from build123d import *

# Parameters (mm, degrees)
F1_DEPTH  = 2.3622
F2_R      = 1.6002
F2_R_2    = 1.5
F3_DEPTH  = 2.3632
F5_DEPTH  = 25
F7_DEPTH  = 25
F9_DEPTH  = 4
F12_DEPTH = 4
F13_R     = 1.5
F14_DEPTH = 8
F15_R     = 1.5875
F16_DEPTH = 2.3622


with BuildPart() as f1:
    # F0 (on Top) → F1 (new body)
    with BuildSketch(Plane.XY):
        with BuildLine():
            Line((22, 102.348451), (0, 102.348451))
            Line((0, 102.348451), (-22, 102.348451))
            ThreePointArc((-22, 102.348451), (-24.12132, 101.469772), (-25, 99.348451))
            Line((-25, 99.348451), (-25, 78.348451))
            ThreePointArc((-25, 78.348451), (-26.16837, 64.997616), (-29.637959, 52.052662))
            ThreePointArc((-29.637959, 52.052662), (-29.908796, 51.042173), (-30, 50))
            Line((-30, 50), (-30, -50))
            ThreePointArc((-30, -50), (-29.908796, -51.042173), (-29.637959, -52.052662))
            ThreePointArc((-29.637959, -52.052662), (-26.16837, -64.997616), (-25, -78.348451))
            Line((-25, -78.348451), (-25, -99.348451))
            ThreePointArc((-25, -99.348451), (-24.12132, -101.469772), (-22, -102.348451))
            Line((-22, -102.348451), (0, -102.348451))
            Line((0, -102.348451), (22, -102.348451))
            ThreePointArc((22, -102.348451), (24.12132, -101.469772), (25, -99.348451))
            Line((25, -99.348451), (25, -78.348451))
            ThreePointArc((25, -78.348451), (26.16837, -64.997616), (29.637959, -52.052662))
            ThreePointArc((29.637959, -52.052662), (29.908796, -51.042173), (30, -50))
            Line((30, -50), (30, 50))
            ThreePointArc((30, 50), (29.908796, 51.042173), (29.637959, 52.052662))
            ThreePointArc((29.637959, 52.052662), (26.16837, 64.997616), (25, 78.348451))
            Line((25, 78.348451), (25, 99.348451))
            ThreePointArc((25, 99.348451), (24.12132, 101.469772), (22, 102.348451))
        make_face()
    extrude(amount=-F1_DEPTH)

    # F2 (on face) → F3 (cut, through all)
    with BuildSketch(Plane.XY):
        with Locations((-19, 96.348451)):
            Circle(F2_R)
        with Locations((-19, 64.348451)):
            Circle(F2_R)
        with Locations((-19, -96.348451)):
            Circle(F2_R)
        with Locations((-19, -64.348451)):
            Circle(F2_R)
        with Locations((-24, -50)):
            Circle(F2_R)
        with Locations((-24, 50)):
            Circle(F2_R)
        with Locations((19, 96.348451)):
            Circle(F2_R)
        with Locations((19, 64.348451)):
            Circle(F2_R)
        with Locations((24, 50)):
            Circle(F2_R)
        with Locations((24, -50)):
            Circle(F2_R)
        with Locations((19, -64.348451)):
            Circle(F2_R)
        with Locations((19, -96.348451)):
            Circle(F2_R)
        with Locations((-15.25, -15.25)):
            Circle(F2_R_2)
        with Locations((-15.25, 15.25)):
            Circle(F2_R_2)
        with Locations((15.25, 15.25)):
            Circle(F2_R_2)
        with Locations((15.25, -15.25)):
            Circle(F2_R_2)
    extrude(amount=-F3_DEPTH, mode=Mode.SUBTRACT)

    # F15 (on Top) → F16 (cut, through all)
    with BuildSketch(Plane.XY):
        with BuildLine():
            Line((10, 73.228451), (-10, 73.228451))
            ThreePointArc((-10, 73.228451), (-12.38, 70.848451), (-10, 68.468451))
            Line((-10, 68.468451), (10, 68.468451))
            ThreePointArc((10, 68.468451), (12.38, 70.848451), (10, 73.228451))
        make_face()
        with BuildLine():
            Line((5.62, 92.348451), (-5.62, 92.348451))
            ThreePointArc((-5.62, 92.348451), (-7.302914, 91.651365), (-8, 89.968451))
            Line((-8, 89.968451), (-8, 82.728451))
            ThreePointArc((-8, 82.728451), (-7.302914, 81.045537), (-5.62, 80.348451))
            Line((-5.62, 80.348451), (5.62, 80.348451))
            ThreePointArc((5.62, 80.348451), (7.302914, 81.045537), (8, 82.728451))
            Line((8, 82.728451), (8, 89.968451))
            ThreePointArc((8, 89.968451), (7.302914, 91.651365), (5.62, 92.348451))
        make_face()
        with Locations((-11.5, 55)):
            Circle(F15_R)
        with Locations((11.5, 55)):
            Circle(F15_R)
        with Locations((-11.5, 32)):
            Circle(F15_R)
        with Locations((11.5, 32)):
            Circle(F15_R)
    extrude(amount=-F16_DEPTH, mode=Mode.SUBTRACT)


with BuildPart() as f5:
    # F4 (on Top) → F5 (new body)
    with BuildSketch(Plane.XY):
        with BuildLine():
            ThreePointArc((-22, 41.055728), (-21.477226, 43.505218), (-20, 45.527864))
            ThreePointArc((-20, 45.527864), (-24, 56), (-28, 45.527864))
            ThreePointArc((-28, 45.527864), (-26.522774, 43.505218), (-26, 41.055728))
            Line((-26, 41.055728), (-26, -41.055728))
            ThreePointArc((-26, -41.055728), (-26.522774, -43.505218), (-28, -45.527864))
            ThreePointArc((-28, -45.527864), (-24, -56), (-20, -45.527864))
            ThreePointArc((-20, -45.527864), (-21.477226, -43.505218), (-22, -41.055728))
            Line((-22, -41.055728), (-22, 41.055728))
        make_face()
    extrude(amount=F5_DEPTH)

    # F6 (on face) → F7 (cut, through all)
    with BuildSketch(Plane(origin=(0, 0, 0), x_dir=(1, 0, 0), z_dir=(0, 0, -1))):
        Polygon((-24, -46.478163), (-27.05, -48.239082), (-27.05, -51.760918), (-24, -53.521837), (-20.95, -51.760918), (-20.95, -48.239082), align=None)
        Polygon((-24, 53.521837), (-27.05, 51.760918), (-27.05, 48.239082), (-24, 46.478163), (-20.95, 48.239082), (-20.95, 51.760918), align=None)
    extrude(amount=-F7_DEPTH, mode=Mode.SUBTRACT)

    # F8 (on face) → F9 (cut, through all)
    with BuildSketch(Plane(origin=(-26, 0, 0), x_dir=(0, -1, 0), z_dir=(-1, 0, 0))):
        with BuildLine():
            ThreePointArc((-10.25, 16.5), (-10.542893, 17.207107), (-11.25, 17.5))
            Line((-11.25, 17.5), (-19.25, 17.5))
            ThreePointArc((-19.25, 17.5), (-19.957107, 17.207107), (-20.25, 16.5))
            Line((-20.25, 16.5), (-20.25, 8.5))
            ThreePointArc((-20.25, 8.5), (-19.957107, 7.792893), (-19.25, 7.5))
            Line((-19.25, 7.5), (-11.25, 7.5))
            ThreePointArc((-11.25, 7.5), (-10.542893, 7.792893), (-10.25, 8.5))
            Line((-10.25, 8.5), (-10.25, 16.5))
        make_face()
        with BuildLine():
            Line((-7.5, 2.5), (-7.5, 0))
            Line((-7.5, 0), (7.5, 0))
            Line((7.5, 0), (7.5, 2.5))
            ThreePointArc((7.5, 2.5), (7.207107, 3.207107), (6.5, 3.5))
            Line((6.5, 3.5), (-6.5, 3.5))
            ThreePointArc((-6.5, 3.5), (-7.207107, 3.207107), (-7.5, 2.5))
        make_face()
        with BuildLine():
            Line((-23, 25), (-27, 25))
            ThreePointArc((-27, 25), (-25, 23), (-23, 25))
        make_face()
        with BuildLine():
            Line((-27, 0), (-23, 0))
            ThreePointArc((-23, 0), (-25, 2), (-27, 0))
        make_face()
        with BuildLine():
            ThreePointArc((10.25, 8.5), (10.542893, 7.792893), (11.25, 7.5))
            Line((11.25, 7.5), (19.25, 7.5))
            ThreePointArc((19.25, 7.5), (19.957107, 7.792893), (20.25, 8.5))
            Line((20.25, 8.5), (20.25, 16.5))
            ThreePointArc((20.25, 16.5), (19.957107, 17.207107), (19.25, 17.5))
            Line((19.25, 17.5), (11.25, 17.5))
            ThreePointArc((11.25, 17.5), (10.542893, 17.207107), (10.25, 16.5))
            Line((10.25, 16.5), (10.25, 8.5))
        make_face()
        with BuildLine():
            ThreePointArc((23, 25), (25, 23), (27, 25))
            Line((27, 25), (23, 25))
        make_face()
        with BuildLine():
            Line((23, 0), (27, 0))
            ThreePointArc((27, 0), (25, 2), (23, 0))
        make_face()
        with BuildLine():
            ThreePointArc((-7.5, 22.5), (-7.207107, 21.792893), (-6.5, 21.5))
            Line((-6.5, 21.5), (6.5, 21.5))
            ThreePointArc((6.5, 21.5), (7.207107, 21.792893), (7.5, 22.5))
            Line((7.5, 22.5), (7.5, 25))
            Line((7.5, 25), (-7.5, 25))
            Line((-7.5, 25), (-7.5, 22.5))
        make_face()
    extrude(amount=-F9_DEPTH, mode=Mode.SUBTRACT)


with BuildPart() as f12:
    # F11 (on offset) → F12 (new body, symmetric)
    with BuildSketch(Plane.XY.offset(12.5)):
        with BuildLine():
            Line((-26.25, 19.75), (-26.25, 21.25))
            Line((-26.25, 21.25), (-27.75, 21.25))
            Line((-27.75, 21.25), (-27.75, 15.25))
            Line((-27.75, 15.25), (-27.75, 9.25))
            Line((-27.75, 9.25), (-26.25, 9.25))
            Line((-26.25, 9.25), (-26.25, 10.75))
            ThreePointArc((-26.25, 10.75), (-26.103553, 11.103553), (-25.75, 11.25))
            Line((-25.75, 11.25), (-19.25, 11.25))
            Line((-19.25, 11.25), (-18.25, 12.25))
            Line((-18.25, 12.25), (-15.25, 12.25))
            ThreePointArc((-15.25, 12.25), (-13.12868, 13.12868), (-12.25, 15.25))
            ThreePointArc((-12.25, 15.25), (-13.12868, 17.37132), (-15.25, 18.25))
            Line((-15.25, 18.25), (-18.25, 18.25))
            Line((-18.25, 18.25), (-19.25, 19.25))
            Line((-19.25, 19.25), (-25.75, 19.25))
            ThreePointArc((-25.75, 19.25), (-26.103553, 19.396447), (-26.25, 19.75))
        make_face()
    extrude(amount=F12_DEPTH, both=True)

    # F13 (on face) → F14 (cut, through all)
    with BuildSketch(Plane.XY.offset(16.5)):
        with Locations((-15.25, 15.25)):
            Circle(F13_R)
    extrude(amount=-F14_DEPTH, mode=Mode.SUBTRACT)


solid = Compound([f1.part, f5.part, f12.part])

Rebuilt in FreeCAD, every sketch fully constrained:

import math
import FreeCAD as App
import Part
import Sketcher
Q = App.Units.Quantity


def add_polygon(sketch, points):
    """Adds a closed chain of lines whose ends are joined by coincident constraints."""
    first, n = sketch.GeometryCount, len(points)
    for a, b in zip(points, points[1:] + points[:1]):
        sketch.addGeometry(Part.LineSegment(App.Vector(*a, 0), App.Vector(*b, 0)), False)
    for i in range(n):
        sketch.addConstraint(Sketcher.Constraint("Coincident", first + i, 2, first + (i + 1) % n, 1))

doc = App.newDocument("Part")
body = doc.addObject("PartDesign::Body", "Body")

# Sketch on XY plane
sketch1 = body.newObject("Sketcher::SketchObject", "Sketch")
sketch1.AttachmentSupport = (doc.getObject("XY_Plane"), [""])
sketch1.MapMode = "FlatFace"
sketch1.addGeometry([
    Part.LineSegment(App.Vector(22, 102.3, 0), App.Vector(-22, 102.3, 0)),  # 0
    Part.ArcOfCircle(Part.Circle(App.Vector(-22, 99.3, 0), App.Vector(0, 0, 1), 3), math.radians(90), math.radians(180)),  # 1
    Part.LineSegment(App.Vector(-25, 99.3, 0), App.Vector(-25, 78.3, 0)),  # 2
    Part.ArcOfCircle(Part.Circle(App.Vector(-101.9, 78.3, 0), App.Vector(0, 0, 1), 76.9), math.radians(-20), math.radians(0)),  # 3
    Part.ArcOfCircle(Part.Circle(App.Vector(-24, 50, 0), App.Vector(0, 0, 1), 6), math.radians(160), math.radians(180)),  # 4
    Part.LineSegment(App.Vector(-30, 50, 0), App.Vector(-30, -50, 0)),  # 5
    Part.ArcOfCircle(Part.Circle(App.Vector(-24, -50, 0), App.Vector(0, 0, 1), 6), math.radians(-180), math.radians(-160)),  # 6
    Part.ArcOfCircle(Part.Circle(App.Vector(-101.9, -78.3, 0), App.Vector(0, 0, 1), 76.9), math.radians(0), math.radians(20)),  # 7
    Part.LineSegment(App.Vector(-25, -78.3, 0), App.Vector(-25, -99.3, 0)),  # 8
    Part.ArcOfCircle(Part.Circle(App.Vector(-22, -99.3, 0), App.Vector(0, 0, 1), 3), math.radians(180), math.radians(270)),  # 9
    Part.LineSegment(App.Vector(-22, -102.3, 0), App.Vector(22, -102.3, 0)),  # 10
    Part.ArcOfCircle(Part.Circle(App.Vector(22, -99.3, 0), App.Vector(0, 0, 1), 3), math.radians(-90), math.radians(0)),  # 11
    Part.LineSegment(App.Vector(25, -99.3, 0), App.Vector(25, -78.3, 0)),  # 12
    Part.ArcOfCircle(Part.Circle(App.Vector(101.9, -78.3, 0), App.Vector(0, 0, 1), 76.9), math.radians(160), math.radians(180)),  # 13
    Part.ArcOfCircle(Part.Circle(App.Vector(24, -50, 0), App.Vector(0, 0, 1), 6), math.radians(-20), math.radians(0)),  # 14
    Part.LineSegment(App.Vector(30, -50, 0), App.Vector(30, 50, 0)),  # 15
    Part.ArcOfCircle(Part.Circle(App.Vector(24, 50, 0), App.Vector(0, 0, 1), 6), math.radians(0), math.radians(20)),  # 16
    Part.ArcOfCircle(Part.Circle(App.Vector(101.9, 78.3, 0), App.Vector(0, 0, 1), 76.9), math.radians(-180), math.radians(-160)),  # 17
    Part.LineSegment(App.Vector(25, 78.3, 0), App.Vector(25, 99.3, 0)),  # 18
    Part.ArcOfCircle(Part.Circle(App.Vector(22, 99.3, 0), App.Vector(0, 0, 1), 3), math.radians(0), math.radians(90)),  # 19
], False)
sketch1.addConstraint([
    Sketcher.Constraint("Tangent", 0, 2, 1, 1),
    Sketcher.Constraint("Tangent", 1, 2, 2, 1),
    Sketcher.Constraint("Tangent", 2, 2, 3, 2),
    Sketcher.Constraint("Tangent", 3, 1, 4, 1),
    Sketcher.Constraint("Tangent", 4, 2, 5, 1),
    Sketcher.Constraint("Tangent", 5, 2, 6, 1),
    Sketcher.Constraint("Tangent", 6, 2, 7, 2),
    Sketcher.Constraint("Tangent", 7, 1, 8, 1),
    Sketcher.Constraint("Tangent", 8, 2, 9, 1),
    Sketcher.Constraint("Tangent", 9, 2, 10, 1),
    Sketcher.Constraint("Tangent", 10, 2, 11, 1),
    Sketcher.Constraint("Tangent", 11, 2, 12, 1),
    Sketcher.Constraint("Tangent", 12, 2, 13, 2),
    Sketcher.Constraint("Tangent", 13, 1, 14, 1),
    Sketcher.Constraint("Tangent", 14, 2, 15, 1),
    Sketcher.Constraint("Tangent", 15, 2, 16, 1),
    Sketcher.Constraint("Tangent", 16, 2, 17, 2),
    Sketcher.Constraint("Tangent", 17, 1, 18, 1),
    Sketcher.Constraint("Tangent", 18, 2, 19, 1),
    Sketcher.Constraint("Tangent", 19, 2, 0, 1),
    Sketcher.Constraint("Horizontal", 0),
    Sketcher.Constraint("Vertical", 2),
    Sketcher.Constraint("Vertical", 5),
    Sketcher.Constraint("Vertical", 8),
    Sketcher.Constraint("Horizontal", 10),
    Sketcher.Constraint("Vertical", 12),
    Sketcher.Constraint("Vertical", 15),
    Sketcher.Constraint("Vertical", 18),
    Sketcher.Constraint("Equal", 4, 6),
    Sketcher.Constraint("Equal", 3, 7),
    Sketcher.Constraint("Equal", 1, 9),
    Sketcher.Constraint("Equal", 9, 11),
    Sketcher.Constraint("Equal", 7, 13),
    Sketcher.Constraint("Equal", 6, 14),
    Sketcher.Constraint("Equal", 14, 16),
    Sketcher.Constraint("Equal", 13, 17),
    Sketcher.Constraint("Equal", 11, 19),
    Sketcher.Constraint("Symmetric", 1, 3, 11, 3, -1, 1),
    Sketcher.Constraint("Symmetric", 4, 3, 14, 3, -1, 1),
    Sketcher.Constraint("Symmetric", 7, 3, 17, 3, -1, 1),
    Sketcher.Constraint("Symmetric", 7, 3, 13, 3, -2),
    Sketcher.Constraint("Radius", 1, Q("2.999999 mm")),
    Sketcher.Constraint("DistanceX", 0, 2, 0, 1, Q("44 mm")),
    Sketcher.Constraint("DistanceY", 2, 2, 2, 1, Q("21 mm")),
    Sketcher.Constraint("DistanceY", 5, 2, 5, 1, Q("100 mm")),
    Sketcher.Constraint("DistanceX", 4, 2, -1, 1, Q("30 mm")),
    Sketcher.Constraint("Radius", 3, Q("76.863483 mm")),
    Sketcher.Constraint("Radius", 4, Q("6.000037 mm")),
])
pad1 = body.newObject("PartDesign::Pad", "Pad")
pad1.Profile = sketch1
pad1.Length = 2.3622
pad1.Reversed = True

# Sketch on XY plane
sketch2 = body.newObject("Sketcher::SketchObject", "Sketch001")
sketch2.AttachmentSupport = (doc.getObject("XY_Plane"), [""])
sketch2.MapMode = "FlatFace"
sketch2.addGeometry([
    Part.Circle(App.Vector(-19, 96.3, 0), App.Vector(0, 0, 1), 1.6),  # 0
    Part.Circle(App.Vector(-19, 64.3, 0), App.Vector(0, 0, 1), 1.6),  # 1
    Part.Circle(App.Vector(-19, -96.3, 0), App.Vector(0, 0, 1), 1.6),  # 2
    Part.Circle(App.Vector(-19, -64.3, 0), App.Vector(0, 0, 1), 1.6),  # 3
    Part.Circle(App.Vector(-24, -50, 0), App.Vector(0, 0, 1), 1.6),  # 4
    Part.Circle(App.Vector(-24, 50, 0), App.Vector(0, 0, 1), 1.6),  # 5
    Part.Circle(App.Vector(19, 96.3, 0), App.Vector(0, 0, 1), 1.6),  # 6
    Part.Circle(App.Vector(19, 64.3, 0), App.Vector(0, 0, 1), 1.6),  # 7
    Part.Circle(App.Vector(24, 50, 0), App.Vector(0, 0, 1), 1.6),  # 8
    Part.Circle(App.Vector(24, -50, 0), App.Vector(0, 0, 1), 1.6),  # 9
    Part.Circle(App.Vector(19, -64.3, 0), App.Vector(0, 0, 1), 1.6),  # 10
    Part.Circle(App.Vector(19, -96.3, 0), App.Vector(0, 0, 1), 1.6),  # 11
    Part.Circle(App.Vector(-15.2, -15.2, 0), App.Vector(0, 0, 1), 1.5),  # 12
    Part.Circle(App.Vector(-15.2, 15.2, 0), App.Vector(0, 0, 1), 1.5),  # 13
    Part.Circle(App.Vector(15.2, 15.2, 0), App.Vector(0, 0, 1), 1.5),  # 14
    Part.Circle(App.Vector(15.2, -15.2, 0), App.Vector(0, 0, 1), 1.5),  # 15
], False)
sketch2.addConstraint([
    Sketcher.Constraint("Equal", 0, 1),
    Sketcher.Constraint("Equal", 1, 2),
    Sketcher.Constraint("Equal", 2, 3),
    Sketcher.Constraint("Equal", 3, 4),
    Sketcher.Constraint("Equal", 4, 5),
    Sketcher.Constraint("Equal", 5, 6),
    Sketcher.Constraint("Equal", 6, 7),
    Sketcher.Constraint("Equal", 7, 8),
    Sketcher.Constraint("Equal", 8, 9),
    Sketcher.Constraint("Equal", 9, 10),
    Sketcher.Constraint("Equal", 10, 11),
    Sketcher.Constraint("Equal", 12, 13),
    Sketcher.Constraint("Equal", 13, 14),
    Sketcher.Constraint("Equal", 14, 15),
    Sketcher.Constraint("Symmetric", 2, 3, 6, 3, -1, 1),
    Sketcher.Constraint("Symmetric", 3, 3, 7, 3, -1, 1),
    Sketcher.Constraint("Symmetric", 4, 3, 8, 3, -1, 1),
    Sketcher.Constraint("Symmetric", 5, 3, 9, 3, -1, 1),
    Sketcher.Constraint("Symmetric", 1, 3, 10, 3, -1, 1),
    Sketcher.Constraint("Symmetric", 0, 3, 11, 3, -1, 1),
    Sketcher.Constraint("Symmetric", 12, 3, 14, 3, -1, 1),
    Sketcher.Constraint("Symmetric", 13, 3, 15, 3, -1, 1),
    Sketcher.Constraint("Symmetric", 0, 3, 6, 3, -2),
    Sketcher.Constraint("Symmetric", 1, 3, 7, 3, -2),
    Sketcher.Constraint("Symmetric", 5, 3, 8, 3, -2),
    Sketcher.Constraint("Symmetric", 13, 3, 14, 3, -2),
    Sketcher.Constraint("Vertical", 0, 3, 1, 3),
    Sketcher.Constraint("Diameter", 12, Q("3 mm")),
    Sketcher.Constraint("DistanceX", 0, 3, -1, 1, Q("19 mm")),
    Sketcher.Constraint("DistanceX", 4, 3, -1, 1, Q("24 mm")),
    Sketcher.Constraint("DistanceY", 4, 3, -1, 1, Q("50 mm")),
    Sketcher.Constraint("DistanceY", 1, 3, 0, 3, Q("32 mm")),
    Sketcher.Constraint("Diameter", 0, Q("3.2004 mm")),
    Sketcher.Constraint("DistanceY", 12, 3, 13, 3, Q("30.5 mm")),
    Sketcher.Constraint("DistanceX", 13, 3, 14, 3, Q("30.5 mm")),
    Sketcher.Constraint("DistanceY", 2, 3, 1, 3, Q("160.696902 mm")),
])
pocket1 = body.newObject("PartDesign::Pocket", "Pocket")
pocket1.Profile = sketch2
pocket1.Type = "ThroughAll"

# Sketch on XY plane
sketch3 = body.newObject("Sketcher::SketchObject", "Sketch002")
sketch3.AttachmentSupport = (doc.getObject("XY_Plane"), [""])
sketch3.MapMode = "FlatFace"
sketch3.addGeometry([
    Part.LineSegment(App.Vector(10, 73.2, 0), App.Vector(-10, 73.2, 0)),  # 0
    Part.ArcOfCircle(Part.Circle(App.Vector(-10, 70.8, 0), App.Vector(0, 0, 1), 2.4), math.radians(90), math.radians(270)),  # 1
    Part.LineSegment(App.Vector(-10, 68.5, 0), App.Vector(10, 68.5, 0)),  # 2
    Part.ArcOfCircle(Part.Circle(App.Vector(10, 70.8, 0), App.Vector(0, 0, 1), 2.4), math.radians(-90), math.radians(90)),  # 3
    Part.LineSegment(App.Vector(5.6, 92.3, 0), App.Vector(-5.6, 92.3, 0)),  # 4
    Part.ArcOfCircle(Part.Circle(App.Vector(-5.6, 90, 0), App.Vector(0, 0, 1), 2.4), math.radians(90), math.radians(180)),  # 5
    Part.LineSegment(App.Vector(-8, 90, 0), App.Vector(-8, 82.7, 0)),  # 6
    Part.ArcOfCircle(Part.Circle(App.Vector(-5.6, 82.7, 0), App.Vector(0, 0, 1), 2.4), math.radians(-180), math.radians(-90)),  # 7
    Part.LineSegment(App.Vector(-5.6, 80.3, 0), App.Vector(5.6, 80.3, 0)),  # 8
    Part.ArcOfCircle(Part.Circle(App.Vector(5.6, 82.7, 0), App.Vector(0, 0, 1), 2.4), math.radians(-90), math.radians(0)),  # 9
    Part.LineSegment(App.Vector(8, 82.7, 0), App.Vector(8, 90, 0)),  # 10
    Part.ArcOfCircle(Part.Circle(App.Vector(5.6, 90, 0), App.Vector(0, 0, 1), 2.4), math.radians(0), math.radians(90)),  # 11
    Part.Circle(App.Vector(-11.5, 55, 0), App.Vector(0, 0, 1), 1.6),  # 12
    Part.Circle(App.Vector(11.5, 55, 0), App.Vector(0, 0, 1), 1.6),  # 13
    Part.Circle(App.Vector(-11.5, 32, 0), App.Vector(0, 0, 1), 1.6),  # 14
    Part.Circle(App.Vector(11.5, 32, 0), App.Vector(0, 0, 1), 1.6),  # 15
], False)
sketch3.addConstraint([
    Sketcher.Constraint("Tangent", 0, 2, 1, 1),
    Sketcher.Constraint("Tangent", 1, 2, 2, 1),
    Sketcher.Constraint("Tangent", 2, 2, 3, 1),
    Sketcher.Constraint("Tangent", 3, 2, 0, 1),
    Sketcher.Constraint("Tangent", 4, 2, 5, 1),
    Sketcher.Constraint("Tangent", 5, 2, 6, 1),
    Sketcher.Constraint("Tangent", 6, 2, 7, 1),
    Sketcher.Constraint("Tangent", 7, 2, 8, 1),
    Sketcher.Constraint("Tangent", 8, 2, 9, 1),
    Sketcher.Constraint("Tangent", 9, 2, 10, 1),
    Sketcher.Constraint("Tangent", 10, 2, 11, 1),
    Sketcher.Constraint("Tangent", 11, 2, 4, 1),
    Sketcher.Constraint("Horizontal", 0),
    Sketcher.Constraint("Horizontal", 2),
    Sketcher.Constraint("Horizontal", 4),
    Sketcher.Constraint("Vertical", 6),
    Sketcher.Constraint("Horizontal", 8),
    Sketcher.Constraint("Vertical", 10),
    Sketcher.Constraint("Equal", 3, 5),
    Sketcher.Constraint("Equal", 5, 7),
    Sketcher.Constraint("Equal", 7, 9),
    Sketcher.Constraint("Equal", 9, 11),
    Sketcher.Constraint("Equal", 12, 13),
    Sketcher.Constraint("Equal", 13, 14),
    Sketcher.Constraint("Equal", 14, 15),
    Sketcher.Constraint("Symmetric", 12, 3, 13, 3, -2),
    Sketcher.Constraint("Symmetric", 14, 3, 15, 3, -2),
    Sketcher.Constraint("Vertical", 12, 3, 14, 3),
    Sketcher.Constraint("DistanceX", 0, 2, 0, 1, Q("20 mm")),
    Sketcher.Constraint("Radius", 1, Q("2.38 mm")),
    Sketcher.Constraint("Diameter", 12, Q("3.175 mm")),
    Sketcher.Constraint("DistanceX", 1, 3, -1, 1, Q("10 mm")),
    Sketcher.Constraint("DistanceY", -1, 1, 12, 3, Q("55 mm")),
    Sketcher.Constraint("DistanceY", -1, 1, 14, 3, Q("32 mm")),
    Sketcher.Constraint("DistanceX", 5, 2, -1, 1, Q("8 mm")),
    Sketcher.Constraint("DistanceX", -1, 1, 9, 2, Q("8 mm")),
    Sketcher.Constraint("DistanceX", 12, 3, 13, 3, Q("23 mm")),
    Sketcher.Constraint("DistanceY", 6, 2, 6, 1, Q("7.24 mm")),
    Sketcher.Constraint("DistanceY", 0, 2, 7, 3, Q("9.5 mm")),
    Sketcher.Constraint("DistanceY", -1, 1, 1, 3, Q("70.848451 mm")),
])
pocket2 = body.newObject("PartDesign::Pocket", "Pocket001")
pocket2.Profile = sketch3
pocket2.Type = "ThroughAll"
body2 = doc.addObject("PartDesign::Body", "Body001")

# Sketch on XY plane
sketch4 = body2.newObject("Sketcher::SketchObject", "Sketch003")
sketch4.AttachmentSupport = (doc.getObject("XY_Plane001"), [""])
sketch4.MapMode = "FlatFace"
sketch4.addGeometry([
    Part.ArcOfCircle(Part.Circle(App.Vector(-16, 41.1, 0), App.Vector(0, 0, 1), 6), math.radians(132), math.radians(180)),  # 0
    Part.ArcOfCircle(Part.Circle(App.Vector(-24, 50, 0), App.Vector(0, 0, 1), 6), math.radians(-48), math.radians(228)),  # 1
    Part.ArcOfCircle(Part.Circle(App.Vector(-32, 41.1, 0), App.Vector(0, 0, 1), 6), math.radians(0), math.radians(48)),  # 2
    Part.LineSegment(App.Vector(-26, 41.1, 0), App.Vector(-26, -41.1, 0)),  # 3
    Part.ArcOfCircle(Part.Circle(App.Vector(-32, -41.1, 0), App.Vector(0, 0, 1), 6), math.radians(-48), math.radians(0)),  # 4
    Part.ArcOfCircle(Part.Circle(App.Vector(-24, -50, 0), App.Vector(0, 0, 1), 6), math.radians(132), math.radians(408)),  # 5
    Part.ArcOfCircle(Part.Circle(App.Vector(-16, -41.1, 0), App.Vector(0, 0, 1), 6), math.radians(180), math.radians(228)),  # 6
    Part.LineSegment(App.Vector(-22, -41.1, 0), App.Vector(-22, 41.1, 0)),  # 7
], False)
sketch4.addConstraint([
    Sketcher.Constraint("Tangent", 0, 1, 1, 1),
    Sketcher.Constraint("Tangent", 1, 2, 2, 2),
    Sketcher.Constraint("Tangent", 2, 1, 3, 1),
    Sketcher.Constraint("Tangent", 3, 2, 4, 2),
    Sketcher.Constraint("Tangent", 4, 1, 5, 1),
    Sketcher.Constraint("Tangent", 5, 2, 6, 2),
    Sketcher.Constraint("Tangent", 6, 1, 7, 1),
    Sketcher.Constraint("Tangent", 7, 2, 0, 2),
    Sketcher.Constraint("Vertical", 3),
    Sketcher.Constraint("Vertical", 7),
    Sketcher.Constraint("Equal", 0, 2),
    Sketcher.Constraint("Equal", 2, 4),
    Sketcher.Constraint("Equal", 1, 5),
    Sketcher.Constraint("Equal", 4, 6),
    Sketcher.Constraint("Symmetric", 1, 3, 5, 3, -1),
    Sketcher.Constraint("Horizontal", 0, 3, 2, 3),
    Sketcher.Constraint("Radius", 1, Q("6 mm")),
    Sketcher.Constraint("DistanceX", 1, 3, -1, 1, Q("24 mm")),
    Sketcher.Constraint("DistanceY", -1, 1, 1, 3, Q("50 mm")),
    Sketcher.Constraint("DistanceX", 0, 1, -1, 1, Q("20 mm")),
    Sketcher.Constraint("DistanceX", 2, 1, -1, 1, Q("26 mm")),
])
pad2 = body2.newObject("PartDesign::Pad", "Pad001")
pad2.Profile = sketch4
pad2.Length = 25

# Sketch on XY plane
sketch5 = body2.newObject("Sketcher::SketchObject", "Sketch004")
sketch5.AttachmentSupport = (doc.getObject("XY_Plane001"), [""])
sketch5.MapMode = "FlatFace"
add_polygon(sketch5, [(-24, 46.5), (-27.1, 48.2), (-27.1, 51.8), (-24, 53.5), (-20.9, 51.8), (-20.9, 48.2)])  # lines 0-5
add_polygon(sketch5, [(-24, -53.5), (-27.1, -51.8), (-27.1, -48.2), (-24, -46.5), (-20.9, -48.2), (-20.9, -51.8)])  # lines 6-11
sketch5.addConstraint([
    Sketcher.Constraint("Vertical", 1),
    Sketcher.Constraint("Vertical", 4),
    Sketcher.Constraint("Vertical", 7),
    Sketcher.Constraint("Vertical", 10),
    Sketcher.Constraint("Symmetric", 1, 2, 6, 2, -1),
    Sketcher.Constraint("Symmetric", 5, 2, 8, 2, -1),
    Sketcher.Constraint("Symmetric", 4, 2, 9, 2, -1),
    Sketcher.Constraint("Symmetric", 2, 2, 11, 2, -1),
    Sketcher.Constraint("Parallel", 0, 3),
    Sketcher.Constraint("Parallel", 2, 5),
    Sketcher.Constraint("Parallel", 3, 6),
    Sketcher.Constraint("Parallel", 5, 8),
    Sketcher.Constraint("Parallel", 8, 11),
    Sketcher.Constraint("Horizontal", 1, 2, 3, 2),
    Sketcher.Constraint("Horizontal", 0, 2, 4, 2),
    Sketcher.Constraint("Angle", 0, Q("149.99999 deg")),
    Sketcher.Constraint("DistanceX", 2, 2, -1, 1, Q("24 mm")),
    Sketcher.Constraint("DistanceY", 6, 2, 0, 2, Q("100 mm")),
    Sketcher.Constraint("DistanceX", 1, 2, 3, 2, Q("6.1 mm")),
    Sketcher.Constraint("DistanceY", 1, 1, 1, 2, Q("3.521836 mm")),
])
pocket3 = body2.newObject("PartDesign::Pocket", "Pocket002")
pocket3.Profile = sketch5
pocket3.Type = "ThroughAll"
pocket3.Reversed = True

# Sketch on YZ plane
sketch6 = body2.newObject("Sketcher::SketchObject", "Sketch005")
sketch6.AttachmentSupport = (doc.getObject("YZ_Plane001"), [""])
sketch6.MapMode = "FlatFace"
sketch6.AttachmentOffset = App.Placement(App.Vector(0, 0, -26), App.Rotation())
sketch6.addGeometry([
    Part.ArcOfCircle(Part.Circle(App.Vector(11.2, 16.5, 0), App.Vector(0, 0, 1), 1), math.radians(90), math.radians(180)),  # 0
    Part.LineSegment(App.Vector(11.2, 17.5, 0), App.Vector(19.2, 17.5, 0)),  # 1
    Part.ArcOfCircle(Part.Circle(App.Vector(19.3, 16.5, 0), App.Vector(0, 0, 1), 1), math.radians(0), math.radians(90)),  # 2
    Part.LineSegment(App.Vector(20.2, 16.5, 0), App.Vector(20.2, 8.5, 0)),  # 3
    Part.ArcOfCircle(Part.Circle(App.Vector(19.3, 8.5, 0), App.Vector(0, 0, 1), 1), math.radians(-90), math.radians(0)),  # 4
    Part.LineSegment(App.Vector(19.2, 7.5, 0), App.Vector(11.2, 7.5, 0)),  # 5
    Part.ArcOfCircle(Part.Circle(App.Vector(11.2, 8.5, 0), App.Vector(0, 0, 1), 1), math.radians(180), math.radians(270)),  # 6
    Part.LineSegment(App.Vector(10.2, 8.5, 0), App.Vector(10.2, 16.5, 0)),  # 7
    Part.LineSegment(App.Vector(7.5, 2.5, 0), App.Vector(7.5, 0, 0)),  # 8
    Part.LineSegment(App.Vector(7.5, 0, 0), App.Vector(-7.5, 0, 0)),  # 9
    Part.LineSegment(App.Vector(-7.5, 0, 0), App.Vector(-7.5, 2.5, 0)),  # 10
    Part.ArcOfCircle(Part.Circle(App.Vector(-6.5, 2.5, 0), App.Vector(0, 0, 1), 1), math.radians(90), math.radians(180)),  # 11
    Part.LineSegment(App.Vector(-6.5, 3.5, 0), App.Vector(6.5, 3.5, 0)),  # 12
    Part.ArcOfCircle(Part.Circle(App.Vector(6.5, 2.5, 0), App.Vector(0, 0, 1), 1), math.radians(0), math.radians(90)),  # 13
    Part.LineSegment(App.Vector(23, 25, 0), App.Vector(27, 25, 0)),  # 14
    Part.ArcOfCircle(Part.Circle(App.Vector(25, 25, 0), App.Vector(0, 0, 1), 2), math.radians(180), math.radians(360)),  # 15
    Part.LineSegment(App.Vector(27, 0, 0), App.Vector(23, 0, 0)),  # 16
    Part.ArcOfCircle(Part.Circle(App.Vector(25, 0, 0), App.Vector(0, 0, 1), 2), math.radians(0), math.radians(180)),  # 17
    Part.ArcOfCircle(Part.Circle(App.Vector(-11.2, 8.5, 0), App.Vector(0, 0, 1), 1), math.radians(-90), math.radians(0)),  # 18
    Part.LineSegment(App.Vector(-11.2, 7.5, 0), App.Vector(-19.2, 7.5, 0)),  # 19
    Part.ArcOfCircle(Part.Circle(App.Vector(-19.3, 8.5, 0), App.Vector(0, 0, 1), 1), math.radians(180), math.radians(270)),  # 20
    Part.LineSegment(App.Vector(-20.2, 8.5, 0), App.Vector(-20.2, 16.5, 0)),  # 21
    Part.ArcOfCircle(Part.Circle(App.Vector(-19.3, 16.5, 0), App.Vector(0, 0, 1), 1), math.radians(90), math.radians(180)),  # 22
    Part.LineSegment(App.Vector(-19.2, 17.5, 0), App.Vector(-11.2, 17.5, 0)),  # 23
    Part.ArcOfCircle(Part.Circle(App.Vector(-11.2, 16.5, 0), App.Vector(0, 0, 1), 1), math.radians(0), math.radians(90)),  # 24
    Part.LineSegment(App.Vector(-10.2, 16.5, 0), App.Vector(-10.2, 8.5, 0)),  # 25
    Part.ArcOfCircle(Part.Circle(App.Vector(-25, 25, 0), App.Vector(0, 0, 1), 2), math.radians(180), math.radians(360)),  # 26
    Part.LineSegment(App.Vector(-27, 25, 0), App.Vector(-23, 25, 0)),  # 27
    Part.LineSegment(App.Vector(-23, 0, 0), App.Vector(-27, 0, 0)),  # 28
    Part.ArcOfCircle(Part.Circle(App.Vector(-25, 0, 0), App.Vector(0, 0, 1), 2), math.radians(0), math.radians(180)),  # 29
    Part.ArcOfCircle(Part.Circle(App.Vector(6.5, 22.5, 0), App.Vector(0, 0, 1), 1), math.radians(-90), math.radians(0)),  # 30
    Part.LineSegment(App.Vector(6.5, 21.5, 0), App.Vector(-6.5, 21.5, 0)),  # 31
    Part.ArcOfCircle(Part.Circle(App.Vector(-6.5, 22.5, 0), App.Vector(0, 0, 1), 1), math.radians(180), math.radians(270)),  # 32
    Part.LineSegment(App.Vector(-7.5, 22.5, 0), App.Vector(-7.5, 25, 0)),  # 33
    Part.LineSegment(App.Vector(-7.5, 25, 0), App.Vector(7.5, 25, 0)),  # 34
    Part.LineSegment(App.Vector(7.5, 25, 0), App.Vector(7.5, 22.5, 0)),  # 35
], False)
sketch6.addConstraint([
    Sketcher.Constraint("Tangent", 0, 1, 1, 1),
    Sketcher.Constraint("Tangent", 1, 2, 2, 2),
    Sketcher.Constraint("Tangent", 2, 1, 3, 1),
    Sketcher.Constraint("Tangent", 3, 2, 4, 2),
    Sketcher.Constraint("Tangent", 4, 1, 5, 1),
    Sketcher.Constraint("Tangent", 5, 2, 6, 2),
    Sketcher.Constraint("Tangent", 6, 1, 7, 1),
    Sketcher.Constraint("Tangent", 7, 2, 0, 2),
    Sketcher.Constraint("Coincident", 8, 2, 9, 1),
    Sketcher.Constraint("Coincident", 9, 2, 10, 1),
    Sketcher.Constraint("Tangent", 10, 2, 11, 2),
    Sketcher.Constraint("Tangent", 11, 1, 12, 1),
    Sketcher.Constraint("Tangent", 12, 2, 13, 2),
    Sketcher.Constraint("Tangent", 13, 1, 8, 1),
    Sketcher.Constraint("Coincident", 14, 1, 15, 1),
    Sketcher.Constraint("Coincident", 15, 2, 14, 2),
    Sketcher.Constraint("Coincident", 16, 1, 17, 1),
    Sketcher.Constraint("Coincident", 17, 2, 16, 2),
    Sketcher.Constraint("Tangent", 18, 1, 19, 1),
    Sketcher.Constraint("Tangent", 19, 2, 20, 2),
    Sketcher.Constraint("Tangent", 20, 1, 21, 1),
    Sketcher.Constraint("Tangent", 21, 2, 22, 2),
    Sketcher.Constraint("Tangent", 22, 1, 23, 1),
    Sketcher.Constraint("Tangent", 23, 2, 24, 2),
    Sketcher.Constraint("Tangent", 24, 1, 25, 1),
    Sketcher.Constraint("Tangent", 25, 2, 18, 2),
    Sketcher.Constraint("Coincident", 26, 1, 27, 1),
    Sketcher.Constraint("Coincident", 27, 2, 26, 2),
    Sketcher.Constraint("Coincident", 28, 1, 29, 1),
    Sketcher.Constraint("Coincident", 29, 2, 28, 2),
    Sketcher.Constraint("Tangent", 30, 1, 31, 1),
    Sketcher.Constraint("Tangent", 31, 2, 32, 2),
    Sketcher.Constraint("Tangent", 32, 1, 33, 1),
    Sketcher.Constraint("Coincident", 33, 2, 34, 1),
    Sketcher.Constraint("Coincident", 34, 2, 35, 1),
    Sketcher.Constraint("Tangent", 35, 2, 30, 2),
    Sketcher.Constraint("Horizontal", 1),
    Sketcher.Constraint("Vertical", 3),
    Sketcher.Constraint("Horizontal", 5),
    Sketcher.Constraint("Vertical", 7),
    Sketcher.Constraint("Vertical", 8),
    Sketcher.Constraint("Horizontal", 9),
    Sketcher.Constraint("Vertical", 10),
    Sketcher.Constraint("Horizontal", 12),
    Sketcher.Constraint("Horizontal", 14),
    Sketcher.Constraint("Horizontal", 16),
    Sketcher.Constraint("Horizontal", 19),
    Sketcher.Constraint("Vertical", 21),
    Sketcher.Constraint("Horizontal", 23),
    Sketcher.Constraint("Vertical", 25),
    Sketcher.Constraint("Horizontal", 27),
    Sketcher.Constraint("Horizontal", 28),
    Sketcher.Constraint("Horizontal", 31),
    Sketcher.Constraint("Vertical", 33),
    Sketcher.Constraint("Horizontal", 34),
    Sketcher.Constraint("Vertical", 35),
    Sketcher.Constraint("Equal", 0, 2),
    Sketcher.Constraint("Equal", 2, 4),
    Sketcher.Constraint("Equal", 4, 6),
    Sketcher.Constraint("Equal", 6, 11),
    Sketcher.Constraint("Equal", 11, 13),
    Sketcher.Constraint("Equal", 15, 17),
    Sketcher.Constraint("Equal", 13, 18),
    Sketcher.Constraint("Equal", 18, 20),
    Sketcher.Constraint("Equal", 20, 22),
    Sketcher.Constraint("Equal", 22, 24),
    Sketcher.Constraint("Equal", 17, 26),
    Sketcher.Constraint("Equal", 26, 29),
    Sketcher.Constraint("Equal", 24, 30),
    Sketcher.Constraint("Equal", 30, 32),
    Sketcher.Constraint("Symmetric", 17, 3, 29, 3, -1, 1),
    Sketcher.Constraint("Symmetric", 8, 2, 9, 2, -1, 1),
    Sketcher.Constraint("Symmetric", 6, 3, 18, 3, -2),
    Sketcher.Constraint("Symmetric", 2, 3, 22, 3, -2),
    Sketcher.Constraint("Symmetric", 15, 3, 26, 3, -2),
    Sketcher.Constraint("PointOnObject", 17, 3, -1),
    Sketcher.Constraint("PointOnObject", 16, 1, -1),
    Sketcher.Constraint("PointOnObject", 28, 1, -1),
    Sketcher.Constraint("Horizontal", 26, 3, 14, 1),
    Sketcher.Constraint("Horizontal", 15, 2, 26, 1),
    Sketcher.Constraint("Horizontal", 27, 2, 33, 2),
    Sketcher.Constraint("Vertical", 15, 3, 17, 3),
    Sketcher.Constraint("Vertical", 13, 3, 30, 3),
    Sketcher.Constraint("Vertical", 11, 3, 32, 3),
    Sketcher.Constraint("Equal", 23, 3),
    Sketcher.Constraint("Equal", 10, 33),
    Sketcher.Constraint("Radius", 0, Q("0.999999 mm")),
    Sketcher.Constraint("Radius", 15, Q("2 mm")),
    Sketcher.Constraint("DistanceX", 1, 1, 1, 2, Q("8 mm")),
    Sketcher.Constraint("DistanceX", 9, 2, 9, 1, Q("15 mm")),
    Sketcher.Constraint("DistanceY", 8, 2, 8, 1, Q("2.5 mm")),
    Sketcher.Constraint("DistanceX", -1, 1, 15, 3, Q("25 mm")),
    Sketcher.Constraint("DistanceY", -1, 1, 15, 3, Q("25 mm")),
    Sketcher.Constraint("DistanceY", 11, 3, 6, 3, Q("5.999999 mm")),
    Sketcher.Constraint("DistanceX", 18, 3, 6, 3, Q("22.499999 mm")),
])
pocket4 = body2.newObject("PartDesign::Pocket", "Pocket003")
pocket4.Profile = sketch6
pocket4.Type = "ThroughAll"
pocket4.Reversed = True
body3 = doc.addObject("PartDesign::Body", "Body002")

# Sketch on XY plane
sketch7 = body3.newObject("Sketcher::SketchObject", "Sketch006")
sketch7.AttachmentSupport = (doc.getObject("XY_Plane002"), [""])
sketch7.MapMode = "FlatFace"
sketch7.AttachmentOffset = App.Placement(App.Vector(0, 0, 12.5), App.Rotation())
sketch7.addGeometry([
    Part.LineSegment(App.Vector(-26.2, 19.8, 0), App.Vector(-26.2, 21.2, 0)),  # 0
    Part.LineSegment(App.Vector(-26.2, 21.2, 0), App.Vector(-27.8, 21.2, 0)),  # 1
    Part.LineSegment(App.Vector(-27.8, 21.2, 0), App.Vector(-27.8, 9.2, 0)),  # 2
    Part.LineSegment(App.Vector(-27.8, 9.2, 0), App.Vector(-26.2, 9.2, 0)),  # 3
    Part.LineSegment(App.Vector(-26.2, 9.2, 0), App.Vector(-26.2, 10.8, 0)),  # 4
    Part.ArcOfCircle(Part.Circle(App.Vector(-25.7, 10.7, 0), App.Vector(0, 0, 1), 0.5), math.radians(90), math.radians(180)),  # 5
    Part.LineSegment(App.Vector(-25.8, 11.2, 0), App.Vector(-19.2, 11.2, 0)),  # 6
    Part.LineSegment(App.Vector(-19.2, 11.2, 0), App.Vector(-18.2, 12.2, 0)),  # 7
    Part.LineSegment(App.Vector(-18.2, 12.2, 0), App.Vector(-15.2, 12.2, 0)),  # 8
    Part.ArcOfCircle(Part.Circle(App.Vector(-15.3, 15.3, 0), App.Vector(0, 0, 1), 3), math.radians(-90), math.radians(0)),  # 9
    Part.ArcOfCircle(Part.Circle(App.Vector(-15.3, 15.2, 0), App.Vector(0, 0, 1), 3), math.radians(0), math.radians(90)),  # 10
    Part.LineSegment(App.Vector(-15.2, 18.2, 0), App.Vector(-18.2, 18.2, 0)),  # 11
    Part.LineSegment(App.Vector(-18.2, 18.2, 0), App.Vector(-19.2, 19.2, 0)),  # 12
    Part.LineSegment(App.Vector(-19.2, 19.2, 0), App.Vector(-25.8, 19.2, 0)),  # 13
    Part.ArcOfCircle(Part.Circle(App.Vector(-25.7, 19.8, 0), App.Vector(0, 0, 1), 0.5), math.radians(-180), math.radians(-90)),  # 14
], False)
sketch7.addConstraint([
    Sketcher.Constraint("Coincident", 0, 2, 1, 1),
    Sketcher.Constraint("Coincident", 1, 2, 2, 1),
    Sketcher.Constraint("Coincident", 2, 2, 3, 1),
    Sketcher.Constraint("Coincident", 3, 2, 4, 1),
    Sketcher.Constraint("Coincident", 4, 2, 5, 2),
    Sketcher.Constraint("Coincident", 5, 1, 6, 1),
    Sketcher.Constraint("Coincident", 6, 2, 7, 1),
    Sketcher.Constraint("Coincident", 7, 2, 8, 1),
    Sketcher.Constraint("Tangent", 8, 2, 9, 1),
    Sketcher.Constraint("Tangent", 9, 2, 10, 1),
    Sketcher.Constraint("Tangent", 10, 2, 11, 1),
    Sketcher.Constraint("Coincident", 11, 2, 12, 1),
    Sketcher.Constraint("Coincident", 12, 2, 13, 1),
    Sketcher.Constraint("Coincident", 13, 2, 14, 2),
    Sketcher.Constraint("Coincident", 14, 1, 0, 1),
    Sketcher.Constraint("Vertical", 0),
    Sketcher.Constraint("Horizontal", 1),
    Sketcher.Constraint("Vertical", 2),
    Sketcher.Constraint("Horizontal", 3),
    Sketcher.Constraint("Vertical", 4),
    Sketcher.Constraint("Horizontal", 6),
    Sketcher.Constraint("Horizontal", 8),
    Sketcher.Constraint("Horizontal", 11),
    Sketcher.Constraint("Horizontal", 13),
    Sketcher.Constraint("Equal", 9, 10),
    Sketcher.Constraint("Equal", 5, 14),
    Sketcher.Constraint("Perpendicular", 7, 12),
    Sketcher.Constraint("Horizontal", 5, 3, 4, 2),
    Sketcher.Constraint("Horizontal", 10, 3, 9, 2),
    Sketcher.Constraint("Vertical", 5, 3, 14, 3),
    Sketcher.Constraint("Vertical", 14, 3, 5, 1),
    Sketcher.Constraint("Vertical", 7, 2, 11, 2),
    Sketcher.Constraint("Vertical", 6, 2, 12, 2),
    Sketcher.Constraint("Vertical", 5, 1, 13, 2),
    Sketcher.Constraint("Equal", 3, 0),
    Sketcher.Constraint("Equal", 0, 4),
    Sketcher.Constraint("Equal", 7, 12),
    Sketcher.Constraint("Radius", 9, Q("3.000001 mm")),
    Sketcher.Constraint("Radius", 5, Q("0.500001 mm")),
    Sketcher.Constraint("DistanceX", 8, 1, 8, 2, Q("3 mm")),
    Sketcher.Constraint("DistanceY", 2, 2, 2, 1, Q("12 mm")),
    Sketcher.Constraint("DistanceX", 1, 2, 1, 1, Q("1.5 mm")),
    Sketcher.Constraint("DistanceX", 6, 1, 6, 2, Q("6.5 mm")),
    Sketcher.Constraint("DistanceX", 0, 2, 9, 3, Q("10.999999 mm")),
    Sketcher.Constraint("DistanceX", 5, 3, -1, 1, Q("25.749999 mm")),
    Sketcher.Constraint("DistanceY", -1, 1, 5, 3, Q("10.749999 mm")),
])
pad3 = body3.newObject("PartDesign::Pad", "Pad002")
pad3.Profile = sketch7
pad3.Length = 8
pad3.Midplane = True

# Sketch on XY plane
sketch8 = body3.newObject("Sketcher::SketchObject", "Sketch007")
sketch8.AttachmentSupport = (doc.getObject("XY_Plane002"), [""])
sketch8.MapMode = "FlatFace"
sketch8.AttachmentOffset = App.Placement(App.Vector(0, 0, 16.5), App.Rotation())
sketch8.addGeometry(Part.Circle(App.Vector(-15.2, 15.2, 0), App.Vector(0, 0, 1), 1.5), False)
sketch8.addConstraint([
    Sketcher.Constraint("Diameter", 0, Q("3 mm")),
    Sketcher.Constraint("DistanceX", 0, 3, -1, 1, Q("15.25 mm")),
    Sketcher.Constraint("DistanceY", -1, 1, 0, 3, Q("15.25 mm")),
])
pocket5 = body3.newObject("PartDesign::Pocket", "Pocket004")
pocket5.Profile = sketch8
pocket5.Type = "ThroughAll"

doc.recompute()
